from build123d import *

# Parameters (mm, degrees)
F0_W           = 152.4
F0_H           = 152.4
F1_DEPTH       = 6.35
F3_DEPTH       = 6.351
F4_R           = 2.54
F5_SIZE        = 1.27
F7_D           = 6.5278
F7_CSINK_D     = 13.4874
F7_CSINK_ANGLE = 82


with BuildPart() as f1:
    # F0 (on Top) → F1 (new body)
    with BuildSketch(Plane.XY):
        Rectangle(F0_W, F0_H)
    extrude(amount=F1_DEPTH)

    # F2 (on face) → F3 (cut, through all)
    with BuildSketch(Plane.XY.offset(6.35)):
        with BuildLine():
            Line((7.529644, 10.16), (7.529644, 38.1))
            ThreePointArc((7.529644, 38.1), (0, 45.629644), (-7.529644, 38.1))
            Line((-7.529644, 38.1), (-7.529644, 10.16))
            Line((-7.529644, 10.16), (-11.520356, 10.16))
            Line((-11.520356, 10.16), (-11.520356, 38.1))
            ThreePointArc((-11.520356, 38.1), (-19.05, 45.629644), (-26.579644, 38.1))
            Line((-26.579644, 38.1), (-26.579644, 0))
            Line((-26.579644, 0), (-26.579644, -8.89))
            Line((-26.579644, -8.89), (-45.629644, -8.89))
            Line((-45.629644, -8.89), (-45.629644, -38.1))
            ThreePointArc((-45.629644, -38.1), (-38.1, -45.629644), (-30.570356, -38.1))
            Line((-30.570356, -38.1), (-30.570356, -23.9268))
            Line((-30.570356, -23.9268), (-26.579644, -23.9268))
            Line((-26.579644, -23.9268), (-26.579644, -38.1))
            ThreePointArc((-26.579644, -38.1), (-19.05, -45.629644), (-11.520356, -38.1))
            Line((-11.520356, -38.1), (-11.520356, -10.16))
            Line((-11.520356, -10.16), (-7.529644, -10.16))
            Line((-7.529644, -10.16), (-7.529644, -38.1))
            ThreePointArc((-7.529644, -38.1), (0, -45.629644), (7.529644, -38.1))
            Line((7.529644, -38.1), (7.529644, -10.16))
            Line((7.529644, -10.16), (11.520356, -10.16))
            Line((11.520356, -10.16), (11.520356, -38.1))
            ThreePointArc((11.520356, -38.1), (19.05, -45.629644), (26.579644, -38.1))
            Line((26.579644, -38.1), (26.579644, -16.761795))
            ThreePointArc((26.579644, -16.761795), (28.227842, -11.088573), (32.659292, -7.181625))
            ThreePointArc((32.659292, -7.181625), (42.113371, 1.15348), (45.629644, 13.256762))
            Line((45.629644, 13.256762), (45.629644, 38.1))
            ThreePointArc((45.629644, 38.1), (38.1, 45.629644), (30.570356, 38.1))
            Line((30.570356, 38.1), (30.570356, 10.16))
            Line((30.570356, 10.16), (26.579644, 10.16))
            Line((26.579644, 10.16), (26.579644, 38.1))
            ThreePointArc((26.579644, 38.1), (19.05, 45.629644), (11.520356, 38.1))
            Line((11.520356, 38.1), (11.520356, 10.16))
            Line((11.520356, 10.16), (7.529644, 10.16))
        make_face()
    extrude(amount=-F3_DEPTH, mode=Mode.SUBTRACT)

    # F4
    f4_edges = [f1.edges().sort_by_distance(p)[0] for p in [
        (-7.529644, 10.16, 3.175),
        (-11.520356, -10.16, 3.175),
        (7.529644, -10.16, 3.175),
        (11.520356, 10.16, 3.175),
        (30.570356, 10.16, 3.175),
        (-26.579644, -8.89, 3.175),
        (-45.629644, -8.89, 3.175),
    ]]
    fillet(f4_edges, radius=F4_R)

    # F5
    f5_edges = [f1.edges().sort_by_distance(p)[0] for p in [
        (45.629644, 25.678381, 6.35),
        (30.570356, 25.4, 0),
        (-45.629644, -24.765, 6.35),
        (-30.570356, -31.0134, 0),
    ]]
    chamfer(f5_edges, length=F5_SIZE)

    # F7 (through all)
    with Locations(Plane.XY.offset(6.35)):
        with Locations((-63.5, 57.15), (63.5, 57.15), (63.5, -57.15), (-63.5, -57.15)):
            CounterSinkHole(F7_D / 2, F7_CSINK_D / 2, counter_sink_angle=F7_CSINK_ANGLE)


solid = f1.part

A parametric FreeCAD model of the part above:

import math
import FreeCAD as App
import Part
import Sketcher

V = App.Vector
Q = App.Units.Quantity


def edges_at(feature, points):
    """Names of the edges that pass closest to the given points."""
    edges = feature.Shape.Edges
    near = lambda p: min(range(len(edges)), key=lambda i: edges[i].distToShape(Part.Vertex(*p))[0])
    return sorted({f"Edge{near(p) + 1}" for p in points})


def add_polygon(sketch, points):
    """Adds a closed chain of lines whose ends are joined by coincident constraints."""
    first, n = sketch.GeometryCount, len(points)
    for a, b in zip(points, points[1:] + points[:1]):
        sketch.addGeometry(Part.LineSegment(App.Vector(*a, 0), App.Vector(*b, 0)), False)
    for i in range(n):
        sketch.addConstraint(Sketcher.Constraint("Coincident", first + i, 2, first + (i + 1) % n, 1))

doc = App.newDocument("Part")
body = doc.addObject("PartDesign::Body", "Body")

# Sketch on XY plane
sketch1 = doc.addObject("Sketcher::SketchObject", "Sketch")
body.addObject(sketch1)
sketch1.AttachmentSupport = (doc.XY_Plane, [""])
sketch1.MapMode = "FlatFace"
add_polygon(sketch1, [(-76, 76), (-76, -76), (76, -76), (76, 76)])  # lines 0-3
sketch1.addConstraint([
    Sketcher.Constraint("Vertical", 0),
    Sketcher.Constraint("Horizontal", 1),
    Sketcher.Constraint("Vertical", 2),
    Sketcher.Constraint("Horizontal", 3),
    Sketcher.Constraint("Symmetric", 0, 2, 2, 2, -1, 1),
    Sketcher.Constraint("Equal", 3, 0),
    Sketcher.Constraint("DistanceX", 1, 1, 1, 2, Q("6 in")),
])
pad1 = doc.addObject("PartDesign::Pad", "Pad")
body.addObject(pad1)
pad1.Profile = sketch1
pad1.Length = Q("0.25 in")

# Sketch on XY plane
sketch2 = doc.addObject("Sketcher::SketchObject", "Sketch001")
body.addObject(sketch2)
sketch2.AttachmentSupport = (doc.XY_Plane, [""])
sketch2.MapMode = "FlatFace"
sketch2.AttachmentOffset = App.Placement(V(0, 0, 0.25 * 25.4), App.Rotation())
sketch2.addGeometry([
    Part.LineSegment(V(7.5, 10.2, 0), V(7.5, 38.1, 0)),  # 0
    Part.ArcOfCircle(Part.Circle(V(0, 38.1, 0), V(0, 0, 1), 7.5), math.radians(0), math.radians(180)),  # 1
    Part.LineSegment(V(-7.5, 38.1, 0), V(-7.5, 10.2, 0)),  # 2
    Part.LineSegment(V(-7.5, 10.2, 0), V(-11.5, 10.2, 0)),  # 3
    Part.LineSegment(V(-11.5, 10.2, 0), V(-11.5, 38.1, 0)),  # 4
    Part.ArcOfCircle(Part.Circle(V(-19.1, 38.1, 0), V(0, 0, 1), 7.5), math.radians(0), math.radians(180)),  # 5
    Part.LineSegment(V(-26.6, 38.1, 0), V(-26.6, -8.9, 0)),  # 6
    Part.LineSegment(V(-26.6, -8.9, 0), V(-45.6, -8.9, 0)),  # 7
    Part.LineSegment(V(-45.6, -8.9, 0), V(-45.6, -38.1, 0)),  # 8
    Part.ArcOfCircle(Part.Circle(V(-38.1, -38.1, 0), V(0, 0, 1), 7.5), math.radians(180), math.radians(360)),  # 9
    Part.LineSegment(V(-30.6, -38.1, 0), V(-30.6, -23.9, 0)),  # 10
    Part.LineSegment(V(-30.6, -23.9, 0), V(-26.6, -23.9, 0)),  # 11
    Part.LineSegment(V(-26.6, -23.9, 0), V(-26.6, -38.1, 0)),  # 12
    Part.ArcOfCircle(Part.Circle(V(-19.1, -38.1, 0), V(0, 0, 1), 7.5), math.radians(180), math.radians(360)),  # 13
    Part.LineSegment(V(-11.5, -38.1, 0), V(-11.5, -10.2, 0)),  # 14
    Part.LineSegment(V(-11.5, -10.2, 0), V(-7.5, -10.2, 0)),  # 15
    Part.LineSegment(V(-7.5, -10.2, 0), V(-7.5, -38.1, 0)),  # 16
    Part.ArcOfCircle(Part.Circle(V(0, -38.1, 0), V(0, 0, 1), 7.5), math.radians(180), math.radians(360)),  # 17
    Part.LineSegment(V(7.5, -38.1, 0), V(7.5, -10.2, 0)),  # 18
    Part.LineSegment(V(7.5, -10.2, 0), V(11.5, -10.2, 0)),  # 19
    Part.LineSegment(V(11.5, -10.2, 0), V(11.5, -38.1, 0)),  # 20
    Part.ArcOfCircle(Part.Circle(V(19.1, -38.1, 0), V(0, 0, 1), 7.5), math.radians(180), math.radians(360)),  # 21
    Part.LineSegment(V(26.6, -38.1, 0), V(26.6, -16.8, 0)),  # 22
    Part.ArcOfCircle(Part.Circle(V(37.2, -16.8, 0), V(0, 0, 1), 10.6), math.radians(115), math.radians(180)),  # 23
    Part.ArcOfCircle(Part.Circle(V(23, 13.3, 0), V(0, 0, 1), 22.6), math.radians(-65), math.radians(0)),  # 24
    Part.LineSegment(V(45.6, 13.3, 0), V(45.6, 38.1, 0)),  # 25
    Part.ArcOfCircle(Part.Circle(V(38.1, 38.1, 0), V(0, 0, 1), 7.5), math.radians(0), math.radians(180)),  # 26
    Part.LineSegment(V(30.6, 38.1, 0), V(30.6, 10.2, 0)),  # 27
    Part.LineSegment(V(30.6, 10.2, 0), V(26.6, 10.2, 0)),  # 28
    Part.LineSegment(V(26.6, 10.2, 0), V(26.6, 38.1, 0)),  # 29
    Part.ArcOfCircle(Part.Circle(V(19.1, 38.1, 0), V(0, 0, 1), 7.5), math.radians(0), math.radians(180)),  # 30
    Part.LineSegment(V(11.5, 38.1, 0), V(11.5, 10.2, 0)),  # 31
    Part.LineSegment(V(11.5, 10.2, 0), V(7.5, 10.2, 0)),  # 32
], False)
sketch2.addConstraint([
    Sketcher.Constraint("Tangent", 0, 2, 1, 1),
    Sketcher.Constraint("Tangent", 1, 2, 2, 1),
    Sketcher.Constraint("Coincident", 2, 2, 3, 1),
    Sketcher.Constraint("Coincident", 3, 2, 4, 1),
    Sketcher.Constraint("Tangent", 4, 2, 5, 1),
    Sketcher.Constraint("Tangent", 5, 2, 6, 1),
    Sketcher.Constraint("Coincident", 6, 2, 7, 1),
    Sketcher.Constraint("Coincident", 7, 2, 8, 1),
    Sketcher.Constraint("Tangent", 8, 2, 9, 1),
    Sketcher.Constraint("Tangent", 9, 2, 10, 1),
    Sketcher.Constraint("Coincident", 10, 2, 11, 1),
    Sketcher.Constraint("Coincident", 11, 2, 12, 1),
    Sketcher.Constraint("Tangent", 12, 2, 13, 1),
    Sketcher.Constraint("Tangent", 13, 2, 14, 1),
    Sketcher.Constraint("Coincident", 14, 2, 15, 1),
    Sketcher.Constraint("Coincident", 15, 2, 16, 1),
    Sketcher.Constraint("Tangent", 16, 2, 17, 1),
    Sketcher.Constraint("Tangent", 17, 2, 18, 1),
    Sketcher.Constraint("Coincident", 18, 2, 19, 1),
    Sketcher.Constraint("Coincident", 19, 2, 20, 1),
    Sketcher.Constraint("Tangent", 20, 2, 21, 1),
    Sketcher.Constraint("Tangent", 21, 2, 22, 1),
    Sketcher.Constraint("Tangent", 22, 2, 23, 2),
    Sketcher.Constraint("Tangent", 23, 1, 24, 1),
    Sketcher.Constraint("Tangent", 24, 2, 25, 1),
    Sketcher.Constraint("Tangent", 25, 2, 26, 1),
    Sketcher.Constraint("Tangent", 26, 2, 27, 1),
    Sketcher.Constraint("Coincident", 27, 2, 28, 1),
    Sketcher.Constraint("Coincident", 28, 2, 29, 1),
    Sketcher.Constraint("Tangent", 29, 2, 30, 1),
    Sketcher.Constraint("Tangent", 30, 2, 31, 1),
    Sketcher.Constraint("Coincident", 31, 2, 32, 1),
    Sketcher.Constraint("Coincident", 32, 2, 0, 1),
    Sketcher.Constraint("Vertical", 0),
    Sketcher.Constraint("Vertical", 2),
    Sketcher.Constraint("Horizontal", 3),
    Sketcher.Constraint("Vertical", 4),
    Sketcher.Constraint("Vertical", 6),
    Sketcher.Constraint("Horizontal", 7),
    Sketcher.Constraint("Vertical", 8),
    Sketcher.Constraint("Vertical", 10),
    Sketcher.Constraint("Horizontal", 11),
    Sketcher.Constraint("Vertical", 12),
    Sketcher.Constraint("Vertical", 14),
    Sketcher.Constraint("Horizontal", 15),
    Sketcher.Constraint("Vertical", 16),
    Sketcher.Constraint("Vertical", 18),
    Sketcher.Constraint("Horizontal", 19),
    Sketcher.Constraint("Vertical", 20),
    Sketcher.Constraint("Vertical", 22),
    Sketcher.Constraint("Vertical", 25),
    Sketcher.Constraint("Vertical", 27),
    Sketcher.Constraint("Horizontal", 28),
    Sketcher.Constraint("Vertical", 29),
    Sketcher.Constraint("Vertical", 31),
    Sketcher.Constraint("Horizontal", 32),
    Sketcher.Constraint("Equal", 1, 5),
    Sketcher.Constraint("Equal", 5, 9),
    Sketcher.Constraint("Equal", 9, 13),
    Sketcher.Constraint("Equal", 13, 17),
    Sketcher.Constraint("Equal", 17, 21),
    Sketcher.Constraint("Equal", 21, 26),
    Sketcher.Constraint("Equal", 26, 30),
    Sketcher.Constraint("Symmetric", 1, 3, 17, 3, -1, 1),
    Sketcher.Constraint("Symmetric", 5, 3, 21, 3, -1, 1),
    Sketcher.Constraint("Symmetric", 9, 3, 26, 3, -1, 1),
    Sketcher.Constraint("Symmetric", 13, 3, 30, 3, -1, 1),
    Sketcher.Constraint("Symmetric", 13, 3, 21, 3, -2),
    Sketcher.Constraint("Symmetric", 15, 2, 18, 2, -2),
    Sketcher.Constraint("Horizontal", 1, 3, 5, 3),
    Sketcher.Constraint("Horizontal", 9, 3, 13, 3),
    Sketcher.Constraint("Horizontal", 3, 2, 27, 2),
    Sketcher.Constraint("Horizontal", 28, 2, 31, 2),
    Sketcher.Constraint("Equal", 3, 11),
    Sketcher.Constraint("Equal", 4, 14),
    Sketcher.Constraint("DistanceY", 0, 1, 0, 2, Q("1.1 in")),
    Sketcher.Constraint("DistanceY", 9, 3, 5, 3, Q("3 in")),
    Sketcher.Constraint("DistanceX", 7, 2, 7, 1, Q("0.75 in")),
    Sketcher.Constraint("DistanceY", 6, 2, 6, 1, Q("1.85 in")),
    Sketcher.Constraint("DistanceY", 10, 1, 10, 2, Q("0.558 in")),
    Sketcher.Constraint("Radius", 23, 10.587932),
    Sketcher.Constraint("Radius", 24, 22.588349),
    Sketcher.Constraint("Radius", 1, 7.529644),
    Sketcher.Constraint("DistanceY", 22, 1, 22, 2, 21.338205),
])
pocket1 = doc.addObject("PartDesign::Pocket", "Pocket")
body.addObject(pocket1)
pocket1.Profile = sketch2
pocket1.Type = "ThroughAll"
doc.recompute()

fillet = doc.addObject("PartDesign::Fillet", "Fillet")
body.addObject(fillet)
fillet.Base = (pocket1, edges_at(pocket1, [
    (-7.53, 10.16, 3.175),
    (-11.52, -10.16, 3.175),
    (7.53, -10.16, 3.175),
    (11.52, 10.16, 3.175),
    (30.57, 10.16, 3.175),
    (-26.58, -8.89, 3.175),
    (-45.63, -8.89, 3.175),
]))
fillet.Radius = Q("0.1 in")
doc.recompute()

chamfer = doc.addObject("PartDesign::Chamfer", "Chamfer")
body.addObject(chamfer)
chamfer.Base = (fillet, edges_at(fillet, [
    (45.63, 25.678, 6.35),
    (30.57, 25.4, 0),
    (-45.63, -24.765, 6.35),
    (-30.57, -31.013, 0),
]))
chamfer.Size = Q("0.05 in")

# Sketch on XY plane
sketch3 = doc.addObject("Sketcher::SketchObject", "Sketch002")
body.addObject(sketch3)
sketch3.AttachmentSupport = (doc.XY_Plane, [""])
sketch3.MapMode = "FlatFace"
sketch3.AttachmentOffset = App.Placement(V(0, 0, 0.25 * 25.4), App.Rotation())
sketch3.addGeometry([
    Part.Circle(V(-63.5, 57.1, 0), V(0, 0, 1), 3.3),
    Part.Circle(V(63.5, 57.1, 0), V(0, 0, 1), 3.3),
    Part.Circle(V(63.5, -57.1, 0), V(0, 0, 1), 3.3),
    Part.Circle(V(-63.5, -57.1, 0), V(0, 0, 1), 3.3),
], False)
sketch3.addConstraint([
    Sketcher.Constraint("Equal", 0, 1),
    Sketcher.Constraint("Equal", 1, 2),
    Sketcher.Constraint("Equal", 2, 3),
    Sketcher.Constraint("Symmetric", 0, 3, 2, 3, -1, 1),
    Sketcher.Constraint("Symmetric", 1, 3, 3, 3, -1, 1),
    Sketcher.Constraint("Symmetric", 0, 3, 1, 3, -2),
    Sketcher.Constraint("Diameter", 0, Q("0.257 in")),
    Sketcher.Constraint("DistanceX", 0, 3, 1, 3, Q("5 in")),
    Sketcher.Constraint("DistanceY", 2, 3, 1, 3, Q("4.5 in")),
])
doc.recompute()
hole = doc.addObject("PartDesign::Hole", "Hole")
body.addObject(hole)
hole.Profile = sketch3
hole.ThreadType = "None"
hole.Diameter = Q("0.257 in")
hole.DepthType = "ThroughAll"
hole.HoleCutType = "Countersink"
hole.HoleCutDiameter = Q("0.531 in")
hole.HoleCutCountersinkAngle = 82

doc.recompute()
